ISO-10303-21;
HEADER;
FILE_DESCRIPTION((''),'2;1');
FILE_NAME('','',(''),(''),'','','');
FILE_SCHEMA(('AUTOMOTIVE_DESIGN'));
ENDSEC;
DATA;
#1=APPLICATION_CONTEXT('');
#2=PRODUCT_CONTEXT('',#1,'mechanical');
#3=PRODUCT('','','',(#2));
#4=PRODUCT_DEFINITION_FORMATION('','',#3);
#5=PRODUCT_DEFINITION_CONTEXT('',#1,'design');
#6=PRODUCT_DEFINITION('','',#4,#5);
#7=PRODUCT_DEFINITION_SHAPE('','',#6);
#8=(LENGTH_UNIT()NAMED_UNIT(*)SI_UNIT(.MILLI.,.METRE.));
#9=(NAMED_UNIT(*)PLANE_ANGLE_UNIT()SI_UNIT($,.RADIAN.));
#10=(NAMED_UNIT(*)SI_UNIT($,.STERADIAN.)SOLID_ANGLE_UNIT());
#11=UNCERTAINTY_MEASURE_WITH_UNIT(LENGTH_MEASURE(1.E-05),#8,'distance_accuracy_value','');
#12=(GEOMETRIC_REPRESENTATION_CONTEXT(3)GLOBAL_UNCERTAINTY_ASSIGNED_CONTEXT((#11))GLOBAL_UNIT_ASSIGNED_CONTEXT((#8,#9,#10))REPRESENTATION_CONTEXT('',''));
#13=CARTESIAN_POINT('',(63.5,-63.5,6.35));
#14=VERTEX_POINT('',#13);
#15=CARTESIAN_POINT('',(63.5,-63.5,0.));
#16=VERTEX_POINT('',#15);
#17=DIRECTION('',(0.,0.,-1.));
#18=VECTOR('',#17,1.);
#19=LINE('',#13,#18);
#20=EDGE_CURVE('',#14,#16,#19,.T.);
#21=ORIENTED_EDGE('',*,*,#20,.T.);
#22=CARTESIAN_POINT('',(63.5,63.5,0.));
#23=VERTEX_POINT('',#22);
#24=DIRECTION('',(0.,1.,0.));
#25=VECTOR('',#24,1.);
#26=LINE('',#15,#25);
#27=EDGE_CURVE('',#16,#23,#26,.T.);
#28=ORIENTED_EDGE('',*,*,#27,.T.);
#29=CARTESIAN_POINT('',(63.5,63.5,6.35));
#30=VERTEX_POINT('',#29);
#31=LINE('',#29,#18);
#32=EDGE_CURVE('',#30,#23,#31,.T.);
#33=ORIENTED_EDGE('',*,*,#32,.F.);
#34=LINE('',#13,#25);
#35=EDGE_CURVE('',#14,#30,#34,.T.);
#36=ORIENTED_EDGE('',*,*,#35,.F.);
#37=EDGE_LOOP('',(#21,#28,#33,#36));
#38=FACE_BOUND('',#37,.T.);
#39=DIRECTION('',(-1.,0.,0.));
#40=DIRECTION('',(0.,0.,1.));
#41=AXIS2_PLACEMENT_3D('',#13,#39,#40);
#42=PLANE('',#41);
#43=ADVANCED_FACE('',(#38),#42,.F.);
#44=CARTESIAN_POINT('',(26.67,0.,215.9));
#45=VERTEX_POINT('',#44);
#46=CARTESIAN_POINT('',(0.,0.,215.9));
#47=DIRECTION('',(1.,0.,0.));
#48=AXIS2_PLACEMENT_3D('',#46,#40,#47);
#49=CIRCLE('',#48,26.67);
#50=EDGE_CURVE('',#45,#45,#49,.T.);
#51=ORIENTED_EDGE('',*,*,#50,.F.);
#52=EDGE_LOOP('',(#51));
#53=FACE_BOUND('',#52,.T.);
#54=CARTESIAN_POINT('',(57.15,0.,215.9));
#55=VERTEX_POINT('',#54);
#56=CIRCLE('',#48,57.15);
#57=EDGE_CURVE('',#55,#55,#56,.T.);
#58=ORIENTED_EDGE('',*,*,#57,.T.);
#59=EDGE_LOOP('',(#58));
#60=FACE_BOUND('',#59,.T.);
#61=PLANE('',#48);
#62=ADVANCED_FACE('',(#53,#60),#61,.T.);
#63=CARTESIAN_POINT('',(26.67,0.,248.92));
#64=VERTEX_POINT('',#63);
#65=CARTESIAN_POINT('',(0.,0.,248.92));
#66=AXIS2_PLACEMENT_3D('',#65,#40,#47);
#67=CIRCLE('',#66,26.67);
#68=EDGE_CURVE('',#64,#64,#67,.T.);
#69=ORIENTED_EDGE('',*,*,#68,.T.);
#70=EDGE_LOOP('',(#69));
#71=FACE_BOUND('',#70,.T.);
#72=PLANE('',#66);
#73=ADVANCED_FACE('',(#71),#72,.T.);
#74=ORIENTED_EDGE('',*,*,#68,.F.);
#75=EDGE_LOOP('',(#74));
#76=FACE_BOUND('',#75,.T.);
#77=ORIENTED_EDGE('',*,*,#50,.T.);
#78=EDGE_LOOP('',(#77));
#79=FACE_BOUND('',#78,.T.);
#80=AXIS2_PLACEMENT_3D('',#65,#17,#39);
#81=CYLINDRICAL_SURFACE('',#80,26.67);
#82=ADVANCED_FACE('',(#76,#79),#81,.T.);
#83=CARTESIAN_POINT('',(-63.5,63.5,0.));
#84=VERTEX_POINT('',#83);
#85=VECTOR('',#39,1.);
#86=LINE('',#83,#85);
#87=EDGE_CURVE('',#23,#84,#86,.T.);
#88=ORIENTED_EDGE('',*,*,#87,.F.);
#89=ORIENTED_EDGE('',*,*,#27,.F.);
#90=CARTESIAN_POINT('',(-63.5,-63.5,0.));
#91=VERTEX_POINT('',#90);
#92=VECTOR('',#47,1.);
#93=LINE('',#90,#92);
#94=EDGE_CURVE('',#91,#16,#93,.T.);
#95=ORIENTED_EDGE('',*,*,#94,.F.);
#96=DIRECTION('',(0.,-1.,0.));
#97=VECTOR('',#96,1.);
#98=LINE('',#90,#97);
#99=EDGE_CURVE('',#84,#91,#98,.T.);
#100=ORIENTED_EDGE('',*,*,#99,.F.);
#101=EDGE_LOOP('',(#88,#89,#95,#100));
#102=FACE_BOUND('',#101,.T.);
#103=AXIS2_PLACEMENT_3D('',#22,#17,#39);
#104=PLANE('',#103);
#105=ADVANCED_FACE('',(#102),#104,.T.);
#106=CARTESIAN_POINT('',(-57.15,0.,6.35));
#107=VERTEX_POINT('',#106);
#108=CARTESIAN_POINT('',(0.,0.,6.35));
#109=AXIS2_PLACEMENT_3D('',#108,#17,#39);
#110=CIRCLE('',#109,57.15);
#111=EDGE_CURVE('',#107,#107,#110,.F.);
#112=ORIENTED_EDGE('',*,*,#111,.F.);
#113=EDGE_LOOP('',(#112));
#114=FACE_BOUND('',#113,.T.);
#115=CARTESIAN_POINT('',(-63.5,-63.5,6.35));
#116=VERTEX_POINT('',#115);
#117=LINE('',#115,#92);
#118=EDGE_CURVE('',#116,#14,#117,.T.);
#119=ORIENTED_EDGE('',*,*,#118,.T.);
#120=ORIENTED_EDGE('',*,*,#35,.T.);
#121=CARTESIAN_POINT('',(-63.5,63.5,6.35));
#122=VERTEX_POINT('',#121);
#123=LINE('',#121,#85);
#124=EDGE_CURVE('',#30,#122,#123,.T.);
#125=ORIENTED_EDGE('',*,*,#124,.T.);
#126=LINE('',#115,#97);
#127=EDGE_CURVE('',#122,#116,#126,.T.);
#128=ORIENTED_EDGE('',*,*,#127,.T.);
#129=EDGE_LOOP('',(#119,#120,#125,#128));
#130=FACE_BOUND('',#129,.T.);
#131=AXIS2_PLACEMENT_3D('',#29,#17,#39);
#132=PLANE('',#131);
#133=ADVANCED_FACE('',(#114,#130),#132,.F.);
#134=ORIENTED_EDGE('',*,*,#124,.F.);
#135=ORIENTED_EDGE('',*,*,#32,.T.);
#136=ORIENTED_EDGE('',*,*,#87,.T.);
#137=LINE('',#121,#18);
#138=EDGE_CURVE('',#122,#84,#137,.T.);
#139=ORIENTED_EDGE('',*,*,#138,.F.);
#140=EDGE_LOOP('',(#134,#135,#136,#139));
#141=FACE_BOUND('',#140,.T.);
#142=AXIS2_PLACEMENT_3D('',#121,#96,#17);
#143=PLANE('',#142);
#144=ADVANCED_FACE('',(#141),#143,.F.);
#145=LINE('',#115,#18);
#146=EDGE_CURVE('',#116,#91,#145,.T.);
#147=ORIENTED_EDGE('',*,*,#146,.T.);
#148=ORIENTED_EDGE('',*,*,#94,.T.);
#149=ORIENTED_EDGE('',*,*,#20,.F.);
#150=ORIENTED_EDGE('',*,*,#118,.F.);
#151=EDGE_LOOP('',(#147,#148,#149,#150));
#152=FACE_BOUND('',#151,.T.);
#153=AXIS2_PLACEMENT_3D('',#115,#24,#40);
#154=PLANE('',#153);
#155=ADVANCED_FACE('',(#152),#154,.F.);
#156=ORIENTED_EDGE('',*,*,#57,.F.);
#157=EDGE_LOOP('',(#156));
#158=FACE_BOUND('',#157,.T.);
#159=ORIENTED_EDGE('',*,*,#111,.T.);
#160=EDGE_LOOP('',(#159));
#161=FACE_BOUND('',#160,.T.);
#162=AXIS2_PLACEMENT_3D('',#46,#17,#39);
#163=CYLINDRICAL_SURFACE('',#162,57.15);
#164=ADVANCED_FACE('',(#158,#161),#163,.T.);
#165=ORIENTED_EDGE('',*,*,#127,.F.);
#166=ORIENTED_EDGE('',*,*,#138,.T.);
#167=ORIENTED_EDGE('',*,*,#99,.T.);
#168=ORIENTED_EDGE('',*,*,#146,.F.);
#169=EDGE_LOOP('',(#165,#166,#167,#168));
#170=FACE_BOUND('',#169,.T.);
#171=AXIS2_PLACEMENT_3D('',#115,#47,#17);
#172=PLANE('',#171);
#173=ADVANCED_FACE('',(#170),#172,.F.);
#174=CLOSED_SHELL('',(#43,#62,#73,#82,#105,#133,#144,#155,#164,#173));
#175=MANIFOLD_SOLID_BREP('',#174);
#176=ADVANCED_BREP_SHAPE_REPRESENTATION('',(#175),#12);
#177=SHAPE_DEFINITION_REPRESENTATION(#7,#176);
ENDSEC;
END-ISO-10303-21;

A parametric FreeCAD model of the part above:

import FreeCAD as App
import Part
import Sketcher
from FreeCAD import Vector
Q = App.Units.Quantity


def add_polygon(sketch, points):
    """Adds a closed chain of lines whose ends are joined by coincident constraints."""
    first, n = sketch.GeometryCount, len(points)
    for a, b in zip(points, points[1:] + points[:1]):
        sketch.addGeometry(Part.LineSegment(App.Vector(*a, 0), App.Vector(*b, 0)), False)
    for i in range(n):
        sketch.addConstraint(Sketcher.Constraint("Coincident", first + i, 2, first + (i + 1) % n, 1))

doc = App.newDocument("Part")
body = doc.addObject("PartDesign::Body", "Body")

sketch1 = body.newObject("Sketcher::SketchObject", "Sketch")
sketch1.AttachmentSupport = (doc.getObject("XY_Plane"), [""])
sketch1.MapMode = "FlatFace"
add_polygon(sketch1, [(-64, 64), (-64, -64), (64, -64), (64, 64)])
sketch1.addConstraint([
    Sketcher.Constraint("Vertical", 0),
    Sketcher.Constraint("Horizontal", 1),
    Sketcher.Constraint("Vertical", 2),
    Sketcher.Constraint("Horizontal", 3),
    Sketcher.Constraint("Symmetric", 0, 2, 2, 2, -1, 1),
    Sketcher.Constraint("Equal", 3, 0),
    Sketcher.Constraint("DistanceX", 1, 1, 1, 2, Q("5 in")),
])
pad1 = body.newObject("PartDesign::Pad", "Pad")
pad1.Profile = sketch1
pad1.Length = Q("0.25 in")

sketch2 = body.newObject("Sketcher::SketchObject", "Sketch001")
sketch2.AttachmentSupport = (doc.getObject("XY_Plane"), [""])
sketch2.MapMode = "FlatFace"
sketch2.AttachmentOffset = App.Placement(Vector(0, 0, 0.25 * 25.4), App.Rotation())
sketch2.addGeometry(Part.Circle(Vector(0, 0, 0), Vector(0, 0, 1), 57), False)
sketch2.addConstraint([
    Sketcher.Constraint("Coincident", 0, 3, -1, 1),
    Sketcher.Constraint("Diameter", 0, Q("4.5 in")),
])
pad2 = body.newObject("PartDesign::Pad", "Pad001")
pad2.Profile = sketch2
pad2.Length = Q("8.25 in")

sketch3 = body.newObject("Sketcher::SketchObject", "Sketch002")
sketch3.AttachmentSupport = (doc.getObject("XY_Plane"), [""])
sketch3.MapMode = "FlatFace"
sketch3.AttachmentOffset = App.Placement(Vector(0, 0, 8.5 * 25.4), App.Rotation())
sketch3.addGeometry(Part.Circle(Vector(0, 0, 0), Vector(0, 0, 1), 27), False)
sketch3.addConstraint([
    Sketcher.Constraint("Coincident", 0, 3, -1, 1),
    Sketcher.Constraint("Diameter", 0, Q("2.1 in")),
])
pad3 = body.newObject("PartDesign::Pad", "Pad002")
pad3.Profile = sketch3
pad3.Length = Q("1.3 in")

doc.recompute()
